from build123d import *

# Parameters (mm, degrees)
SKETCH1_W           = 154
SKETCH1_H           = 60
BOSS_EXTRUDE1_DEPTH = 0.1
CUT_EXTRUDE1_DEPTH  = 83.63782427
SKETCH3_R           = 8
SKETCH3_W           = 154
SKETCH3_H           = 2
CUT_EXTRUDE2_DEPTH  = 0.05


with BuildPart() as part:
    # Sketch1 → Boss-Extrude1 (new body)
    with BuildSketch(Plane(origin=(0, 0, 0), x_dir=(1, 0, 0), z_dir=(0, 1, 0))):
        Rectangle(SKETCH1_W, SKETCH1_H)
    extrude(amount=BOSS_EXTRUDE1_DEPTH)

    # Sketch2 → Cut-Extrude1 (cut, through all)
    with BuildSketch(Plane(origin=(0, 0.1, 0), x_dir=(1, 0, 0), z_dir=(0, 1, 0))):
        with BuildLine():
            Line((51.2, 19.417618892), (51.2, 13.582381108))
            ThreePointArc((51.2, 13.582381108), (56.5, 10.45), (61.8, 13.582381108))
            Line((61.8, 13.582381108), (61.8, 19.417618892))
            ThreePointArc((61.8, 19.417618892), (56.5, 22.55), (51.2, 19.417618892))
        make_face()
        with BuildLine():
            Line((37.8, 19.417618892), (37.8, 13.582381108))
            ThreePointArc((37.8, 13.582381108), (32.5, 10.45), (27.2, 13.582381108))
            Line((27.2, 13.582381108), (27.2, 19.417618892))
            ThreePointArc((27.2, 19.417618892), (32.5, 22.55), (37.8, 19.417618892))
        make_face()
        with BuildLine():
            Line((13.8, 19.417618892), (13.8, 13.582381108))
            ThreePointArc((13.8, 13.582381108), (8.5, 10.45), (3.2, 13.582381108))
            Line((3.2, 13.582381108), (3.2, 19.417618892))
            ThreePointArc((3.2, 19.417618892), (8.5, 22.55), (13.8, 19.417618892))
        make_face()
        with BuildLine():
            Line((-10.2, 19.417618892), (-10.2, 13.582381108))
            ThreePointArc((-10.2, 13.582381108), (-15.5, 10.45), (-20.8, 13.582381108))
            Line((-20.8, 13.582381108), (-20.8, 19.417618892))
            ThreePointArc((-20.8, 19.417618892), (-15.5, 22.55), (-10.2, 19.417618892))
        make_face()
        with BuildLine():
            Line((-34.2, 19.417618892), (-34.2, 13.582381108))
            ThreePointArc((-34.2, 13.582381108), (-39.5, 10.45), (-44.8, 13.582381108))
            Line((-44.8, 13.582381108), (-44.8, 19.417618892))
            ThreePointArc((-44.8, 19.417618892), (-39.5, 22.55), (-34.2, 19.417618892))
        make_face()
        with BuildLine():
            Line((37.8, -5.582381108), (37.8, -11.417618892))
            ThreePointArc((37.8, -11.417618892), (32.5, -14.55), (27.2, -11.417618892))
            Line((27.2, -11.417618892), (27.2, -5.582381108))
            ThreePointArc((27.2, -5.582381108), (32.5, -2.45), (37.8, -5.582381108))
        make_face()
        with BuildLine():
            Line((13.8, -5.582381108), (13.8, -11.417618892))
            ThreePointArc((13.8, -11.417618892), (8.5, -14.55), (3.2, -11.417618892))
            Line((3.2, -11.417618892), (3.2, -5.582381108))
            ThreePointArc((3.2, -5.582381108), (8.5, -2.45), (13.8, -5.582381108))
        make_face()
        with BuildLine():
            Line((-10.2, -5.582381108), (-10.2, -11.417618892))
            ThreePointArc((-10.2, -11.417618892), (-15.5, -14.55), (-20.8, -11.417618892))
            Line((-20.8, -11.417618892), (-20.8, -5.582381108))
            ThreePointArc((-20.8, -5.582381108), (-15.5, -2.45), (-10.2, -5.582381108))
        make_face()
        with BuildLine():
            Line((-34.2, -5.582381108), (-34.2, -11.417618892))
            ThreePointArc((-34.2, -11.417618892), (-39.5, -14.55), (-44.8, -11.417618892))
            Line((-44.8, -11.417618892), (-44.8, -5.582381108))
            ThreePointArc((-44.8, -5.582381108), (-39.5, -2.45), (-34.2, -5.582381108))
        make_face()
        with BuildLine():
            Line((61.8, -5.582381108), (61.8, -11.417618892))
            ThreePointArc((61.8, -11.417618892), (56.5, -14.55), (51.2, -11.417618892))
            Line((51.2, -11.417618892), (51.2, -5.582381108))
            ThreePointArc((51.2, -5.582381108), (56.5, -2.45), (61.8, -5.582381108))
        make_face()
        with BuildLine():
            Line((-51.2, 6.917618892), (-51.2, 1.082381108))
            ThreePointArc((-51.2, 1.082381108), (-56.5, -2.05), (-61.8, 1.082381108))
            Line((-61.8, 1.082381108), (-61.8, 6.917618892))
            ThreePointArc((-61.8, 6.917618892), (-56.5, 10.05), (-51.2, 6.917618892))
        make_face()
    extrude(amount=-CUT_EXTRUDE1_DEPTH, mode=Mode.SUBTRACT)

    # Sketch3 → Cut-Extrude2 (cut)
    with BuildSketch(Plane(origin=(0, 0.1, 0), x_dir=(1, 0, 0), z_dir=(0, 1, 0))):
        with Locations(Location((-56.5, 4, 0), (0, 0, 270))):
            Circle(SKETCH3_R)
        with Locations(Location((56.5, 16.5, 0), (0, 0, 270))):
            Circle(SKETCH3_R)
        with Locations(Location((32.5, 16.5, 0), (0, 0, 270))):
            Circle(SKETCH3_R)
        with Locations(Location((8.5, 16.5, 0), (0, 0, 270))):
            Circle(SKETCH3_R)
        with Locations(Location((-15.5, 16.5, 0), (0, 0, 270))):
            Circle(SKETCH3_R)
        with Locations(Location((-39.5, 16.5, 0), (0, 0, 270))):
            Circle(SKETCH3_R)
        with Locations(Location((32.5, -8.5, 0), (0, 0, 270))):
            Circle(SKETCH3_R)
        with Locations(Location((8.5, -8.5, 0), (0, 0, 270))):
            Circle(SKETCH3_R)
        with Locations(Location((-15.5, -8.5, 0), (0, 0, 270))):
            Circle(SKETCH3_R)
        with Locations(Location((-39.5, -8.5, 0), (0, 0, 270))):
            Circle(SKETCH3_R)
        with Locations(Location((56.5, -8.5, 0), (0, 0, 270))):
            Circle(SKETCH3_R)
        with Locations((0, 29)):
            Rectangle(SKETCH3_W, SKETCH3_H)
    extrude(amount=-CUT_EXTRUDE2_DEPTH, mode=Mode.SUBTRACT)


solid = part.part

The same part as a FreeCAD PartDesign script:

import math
import FreeCAD as App
import Part
import Sketcher

V = App.Vector

doc = App.newDocument("Part")
body = doc.addObject("PartDesign::Body", "Body")

# Sketch on XZ plane
sketch1 = body.newObject("Sketcher::SketchObject", "Sketch")
sketch1.AttachmentSupport = (doc.getObject("XZ_Plane"), [""])
sketch1.MapMode = "FlatFace"
sketch1.addGeometry([
    Part.LineSegment(V(-77, -30, 0), V(-77, 30, 0)),
    Part.LineSegment(V(-77, 30, 0), V(77, 30, 0)),
    Part.LineSegment(V(77, 30, 0), V(77, -30, 0)),
    Part.LineSegment(V(77, -30, 0), V(-77, -30, 0)),
], False)
sketch1.addConstraint([
    Sketcher.Constraint("Coincident", 0, 2, 1, 1),
    Sketcher.Constraint("Coincident", 1, 2, 2, 1),
    Sketcher.Constraint("Coincident", 2, 2, 3, 1),
    Sketcher.Constraint("Coincident", 3, 2, 0, 1),
    Sketcher.Constraint("Vertical", 0),
    Sketcher.Constraint("Horizontal", 1),
    Sketcher.Constraint("Vertical", 2),
    Sketcher.Constraint("Horizontal", 3),
    Sketcher.Constraint("Symmetric", 0, 2, 2, 2, -1, 1),
    Sketcher.Constraint("DistanceX", 1, 1, 1, 2, 154.0),
    Sketcher.Constraint("DistanceY", 0, 1, 0, 2, 60.0),
])
pad1 = body.newObject("PartDesign::Pad", "Pad")
pad1.Profile = sketch1
pad1.Length = 0.1
pad1.Reversed = True

# Sketch on XZ plane
sketch2 = body.newObject("Sketcher::SketchObject", "Sketch001")
sketch2.AttachmentSupport = (doc.getObject("XZ_Plane"), [""])
sketch2.MapMode = "FlatFace"
sketch2.AttachmentOffset = App.Placement(V(0, 0, -0.1), App.Rotation())
sketch2.addGeometry([
    Part.LineSegment(V(51, -19, 0), V(51, -14, 0)),  # 0
    Part.ArcOfCircle(Part.Circle(V(56, -16, 0), V(0, 0, 1), 6), math.radians(29), math.radians(151)),  # 1
    Part.LineSegment(V(62, -14, 0), V(62, -19, 0)),  # 2
    Part.ArcOfCircle(Part.Circle(V(56, -16, 0), V(0, 0, 1), 6), math.radians(-151), math.radians(-29)),  # 3
    Part.LineSegment(V(38, -14, 0), V(38, -19, 0)),  # 4
    Part.ArcOfCircle(Part.Circle(V(32, -16, 0), V(0, 0, 1), 6), math.radians(-151), math.radians(-29)),  # 5
    Part.LineSegment(V(27, -19, 0), V(27, -14, 0)),  # 6
    Part.ArcOfCircle(Part.Circle(V(32, -16, 0), V(0, 0, 1), 6), math.radians(29), math.radians(151)),  # 7
    Part.LineSegment(V(14, -14, 0), V(14, -19, 0)),  # 8
    Part.ArcOfCircle(Part.Circle(V(8, -16, 0), V(0, 0, 1), 6), math.radians(-151), math.radians(-29)),  # 9
    Part.LineSegment(V(3, -19, 0), V(3, -14, 0)),  # 10
    Part.ArcOfCircle(Part.Circle(V(8, -16, 0), V(0, 0, 1), 6), math.radians(29), math.radians(151)),  # 11
    Part.LineSegment(V(-10, -14, 0), V(-10, -19, 0)),  # 12
    Part.ArcOfCircle(Part.Circle(V(-16, -16, 0), V(0, 0, 1), 6), math.radians(-151), math.radians(-29)),  # 13
    Part.LineSegment(V(-21, -19, 0), V(-21, -14, 0)),  # 14
    Part.ArcOfCircle(Part.Circle(V(-16, -16, 0), V(0, 0, 1), 6), math.radians(29), math.radians(151)),  # 15
    Part.LineSegment(V(-34, -14, 0), V(-34, -19, 0)),  # 16
    Part.ArcOfCircle(Part.Circle(V(-40, -16, 0), V(0, 0, 1), 6), math.radians(-151), math.radians(-29)),  # 17
    Part.LineSegment(V(-45, -19, 0), V(-45, -14, 0)),  # 18
    Part.ArcOfCircle(Part.Circle(V(-40, -16, 0), V(0, 0, 1), 6), math.radians(29), math.radians(151)),  # 19
    Part.LineSegment(V(38, 11, 0), V(38, 6, 0)),  # 20
    Part.ArcOfCircle(Part.Circle(V(32, 8, 0), V(0, 0, 1), 6), math.radians(-151), math.radians(-29)),  # 21
    Part.LineSegment(V(27, 6, 0), V(27, 11, 0)),  # 22
    Part.ArcOfCircle(Part.Circle(V(32, 8, 0), V(0, 0, 1), 6), math.radians(29), math.radians(151)),  # 23
    Part.LineSegment(V(14, 11, 0), V(14, 6, 0)),  # 24
    Part.ArcOfCircle(Part.Circle(V(8, 8, 0), V(0, 0, 1), 6), math.radians(-151), math.radians(-29)),  # 25
    Part.LineSegment(V(3, 6, 0), V(3, 11, 0)),  # 26
    Part.ArcOfCircle(Part.Circle(V(8, 8, 0), V(0, 0, 1), 6), math.radians(29), math.radians(151)),  # 27
    Part.LineSegment(V(-10, 11, 0), V(-10, 6, 0)),  # 28
    Part.ArcOfCircle(Part.Circle(V(-16, 8, 0), V(0, 0, 1), 6), math.radians(-151), math.radians(-29)),  # 29
    Part.LineSegment(V(-21, 6, 0), V(-21, 11, 0)),  # 30
    Part.ArcOfCircle(Part.Circle(V(-16, 8, 0), V(0, 0, 1), 6), math.radians(29), math.radians(151)),  # 31
    Part.LineSegment(V(-34, 11, 0), V(-34, 6, 0)),  # 32
    Part.ArcOfCircle(Part.Circle(V(-40, 8, 0), V(0, 0, 1), 6), math.radians(-151), math.radians(-29)),  # 33
    Part.LineSegment(V(-45, 6, 0), V(-45, 11, 0)),  # 34
    Part.ArcOfCircle(Part.Circle(V(-40, 8, 0), V(0, 0, 1), 6), math.radians(29), math.radians(151)),  # 35
    Part.LineSegment(V(62, 11, 0), V(62, 6, 0)),  # 36
    Part.ArcOfCircle(Part.Circle(V(56, 8, 0), V(0, 0, 1), 6), math.radians(-151), math.radians(-29)),  # 37
    Part.LineSegment(V(51, 6, 0), V(51, 11, 0)),  # 38
    Part.ArcOfCircle(Part.Circle(V(56, 8, 0), V(0, 0, 1), 6), math.radians(29), math.radians(151)),  # 39
    Part.LineSegment(V(-51, -1, 0), V(-51, -7, 0)),  # 40
    Part.ArcOfCircle(Part.Circle(V(-56, -4, 0), V(0, 0, 1), 6), math.radians(-151), math.radians(-29)),  # 41
    Part.LineSegment(V(-62, -7, 0), V(-62, -1, 0)),  # 42
    Part.ArcOfCircle(Part.Circle(V(-56, -4, 0), V(0, 0, 1), 6), math.radians(29), math.radians(151)),  # 43
], False)
sketch2.addConstraint([
    Sketcher.Constraint("Coincident", 0, 2, 1, 2),
    Sketcher.Constraint("Coincident", 1, 1, 2, 1),
    Sketcher.Constraint("Coincident", 2, 2, 3, 2),
    Sketcher.Constraint("Coincident", 3, 1, 0, 1),
    Sketcher.Constraint("Coincident", 4, 2, 5, 2),
    Sketcher.Constraint("Coincident", 5, 1, 6, 1),
    Sketcher.Constraint("Coincident", 6, 2, 7, 2),
    Sketcher.Constraint("Coincident", 7, 1, 4, 1),
    Sketcher.Constraint("Coincident", 8, 2, 9, 2),
    Sketcher.Constraint("Coincident", 9, 1, 10, 1),
    Sketcher.Constraint("Coincident", 10, 2, 11, 2),
    Sketcher.Constraint("Coincident", 11, 1, 8, 1),
    Sketcher.Constraint("Coincident", 12, 2, 13, 2),
    Sketcher.Constraint("Coincident", 13, 1, 14, 1),
    Sketcher.Constraint("Coincident", 14, 2, 15, 2),
    Sketcher.Constraint("Coincident", 15, 1, 12, 1),
    Sketcher.Constraint("Coincident", 16, 2, 17, 2),
    Sketcher.Constraint("Coincident", 17, 1, 18, 1),
    Sketcher.Constraint("Coincident", 18, 2, 19, 2),
    Sketcher.Constraint("Coincident", 19, 1, 16, 1),
    Sketcher.Constraint("Coincident", 20, 2, 21, 2),
    Sketcher.Constraint("Coincident", 21, 1, 22, 1),
    Sketcher.Constraint("Coincident", 22, 2, 23, 2),
    Sketcher.Constraint("Coincident", 23, 1, 20, 1),
    Sketcher.Constraint("Coincident", 24, 2, 25, 2),
    Sketcher.Constraint("Coincident", 25, 1, 26, 1),
    Sketcher.Constraint("Coincident", 26, 2, 27, 2),
    Sketcher.Constraint("Coincident", 27, 1, 24, 1),
    Sketcher.Constraint("Coincident", 28, 2, 29, 2),
    Sketcher.Constraint("Coincident", 29, 1, 30, 1),
    Sketcher.Constraint("Coincident", 30, 2, 31, 2),
    Sketcher.Constraint("Coincident", 31, 1, 28, 1),
    Sketcher.Constraint("Coincident", 32, 2, 33, 2),
    Sketcher.Constraint("Coincident", 33, 1, 34, 1),
    Sketcher.Constraint("Coincident", 34, 2, 35, 2),
    Sketcher.Constraint("Coincident", 35, 1, 32, 1),
    Sketcher.Constraint("Coincident", 36, 2, 37, 2),
    Sketcher.Constraint("Coincident", 37, 1, 38, 1),
    Sketcher.Constraint("Coincident", 38, 2, 39, 2),
    Sketcher.Constraint("Coincident", 39, 1, 36, 1),
    Sketcher.Constraint("Coincident", 40, 2, 41, 2),
    Sketcher.Constraint("Coincident", 41, 1, 42, 1),
    Sketcher.Constraint("Coincident", 42, 2, 43, 2),
    Sketcher.Constraint("Coincident", 43, 1, 40, 1),
    Sketcher.Constraint("Vertical", 0),
    Sketcher.Constraint("Vertical", 2),
    Sketcher.Constraint("Vertical", 4),
    Sketcher.Constraint("Vertical", 6),
    Sketcher.Constraint("Vertical", 8),
    Sketcher.Constraint("Vertical", 10),
    Sketcher.Constraint("Vertical", 12),
    Sketcher.Constraint("Vertical", 14),
    Sketcher.Constraint("Vertical", 16),
    Sketcher.Constraint("Vertical", 18),
    Sketcher.Constraint("Vertical", 20),
    Sketcher.Constraint("Vertical", 22),
    Sketcher.Constraint("Vertical", 24),
    Sketcher.Constraint("Vertical", 26),
    Sketcher.Constraint("Vertical", 28),
    Sketcher.Constraint("Vertical", 30),
    Sketcher.Constraint("Vertical", 32),
    Sketcher.Constraint("Vertical", 34),
    Sketcher.Constraint("Vertical", 36),
    Sketcher.Constraint("Vertical", 38),
    Sketcher.Constraint("Vertical", 40),
    Sketcher.Constraint("Vertical", 42),
    Sketcher.Constraint("Coincident", 3, 3, 1, 3),
    Sketcher.Constraint("Coincident", 7, 3, 5, 3),
    Sketcher.Constraint("Coincident", 11, 3, 9, 3),
    Sketcher.Constraint("Coincident", 15, 3, 13, 3),
    Sketcher.Constraint("Coincident", 19, 3, 17, 3),
    Sketcher.Constraint("Coincident", 23, 3, 21, 3),
    Sketcher.Constraint("Coincident", 27, 3, 25, 3),
    Sketcher.Constraint("Coincident", 31, 3, 29, 3),
    Sketcher.Constraint("Coincident", 35, 3, 33, 3),
    Sketcher.Constraint("Coincident", 39, 3, 37, 3),
    Sketcher.Constraint("Coincident", 43, 3, 41, 3),
    Sketcher.Constraint("Equal", 1, 3),
    Sketcher.Constraint("Equal", 3, 5),
    Sketcher.Constraint("Equal", 5, 7),
    Sketcher.Constraint("Equal", 7, 9),
    Sketcher.Constraint("Equal", 9, 11),
    Sketcher.Constraint("Equal", 11, 13),
    Sketcher.Constraint("Equal", 13, 15),
    Sketcher.Constraint("Equal", 15, 17),
    Sketcher.Constraint("Equal", 17, 19),
    Sketcher.Constraint("Equal", 19, 21),
    Sketcher.Constraint("Equal", 21, 23),
    Sketcher.Constraint("Equal", 23, 25),
    Sketcher.Constraint("Equal", 25, 27),
    Sketcher.Constraint("Equal", 27, 29),
    Sketcher.Constraint("Equal", 29, 31),
    Sketcher.Constraint("Equal", 31, 33),
    Sketcher.Constraint("Equal", 33, 35),
    Sketcher.Constraint("Equal", 35, 37),
    Sketcher.Constraint("Equal", 37, 39),
    Sketcher.Constraint("Equal", 39, 41),
    Sketcher.Constraint("Equal", 41, 43),
    Sketcher.Constraint("Horizontal", 3, 3, 5, 3),
    Sketcher.Constraint("Horizontal", 7, 3, 9, 3),
    Sketcher.Constraint("Horizontal", 11, 3, 13, 3),
    Sketcher.Constraint("Horizontal", 15, 3, 17, 3),
    Sketcher.Constraint("Horizontal", 23, 3, 25, 3),
    Sketcher.Constraint("Horizontal", 27, 3, 29, 3),
    Sketcher.Constraint("Horizontal", 31, 3, 33, 3),
    Sketcher.Constraint("Horizontal", 35, 3, 37, 3),
    Sketcher.Constraint("Horizontal", 0, 2, 1, 1),
    Sketcher.Constraint("Horizontal", 3, 1, 4, 2),
    Sketcher.Constraint("Horizontal", 4, 2, 5, 1),
    Sketcher.Constraint("Horizontal", 5, 1, 8, 2),
    Sketcher.Constraint("Horizontal", 8, 2, 9, 1),
    Sketcher.Constraint("Horizontal", 9, 1, 12, 2),
    Sketcher.Constraint("Horizontal", 12, 2, 13, 1),
    Sketcher.Constraint("Horizontal", 13, 1, 16, 2),
    Sketcher.Constraint("Horizontal", 16, 2, 17, 1),
    Sketcher.Constraint("Horizontal", 20, 2, 21, 1),
    Sketcher.Constraint("Horizontal", 21, 1, 24, 2),
    Sketcher.Constraint("Horizontal", 24, 2, 25, 1),
    Sketcher.Constraint("Horizontal", 25, 1, 28, 2),
    Sketcher.Constraint("Horizontal", 28, 2, 29, 1),
    Sketcher.Constraint("Horizontal", 29, 1, 32, 2),
    Sketcher.Constraint("Horizontal", 32, 2, 33, 1),
    Sketcher.Constraint("Horizontal", 33, 1, 36, 2),
    Sketcher.Constraint("Horizontal", 36, 2, 37, 1),
    Sketcher.Constraint("Horizontal", 40, 2, 41, 1),
    Sketcher.Constraint("Vertical", 7, 3, 21, 3),
    Sketcher.Constraint("Vertical", 11, 3, 25, 3),
    Sketcher.Constraint("Vertical", 15, 3, 29, 3),
    Sketcher.Constraint("Vertical", 19, 3, 33, 3),
    Sketcher.Constraint("Vertical", 3, 3, 37, 3),
    Sketcher.Constraint("Vertical", 7, 1, 20, 2),
    Sketcher.Constraint("Equal", 38, 40),
    Sketcher.Constraint("Radius", 1, 6.05),
    Sketcher.Constraint("DistanceY", 41, 3, -1, 1, 4.0),
    Sketcher.Constraint("DistanceX", -1, 1, 1, 3, 56.5),
    Sketcher.Constraint("DistanceY", 1, 3, -1, 1, 16.5),
    Sketcher.Constraint("DistanceX", -1, 1, 5, 3, 32.5),
    Sketcher.Constraint("DistanceX", -1, 1, 9, 3, 8.5),
    Sketcher.Constraint("DistanceX", 13, 3, -1, 1, 15.5),
    Sketcher.Constraint("DistanceX", 17, 3, -1, 1, 39.5),
    Sketcher.Constraint("DistanceY", -1, 1, 21, 3, 8.5),
    Sketcher.Constraint("DistanceX", 41, 3, -1, 1, 56.5),
    Sketcher.Constraint("DistanceX", -1, 1, 0, 2, 51.2),
])
pocket1 = body.newObject("PartDesign::Pocket", "Pocket")
pocket1.Profile = sketch2
pocket1.Type = "ThroughAll"
pocket1.Reversed = True

# Sketch on XZ plane
sketch3 = body.newObject("Sketcher::SketchObject", "Sketch002")
sketch3.AttachmentSupport = (doc.getObject("XZ_Plane"), [""])
sketch3.MapMode = "FlatFace"
sketch3.AttachmentOffset = App.Placement(V(0, 0, -0.1), App.Rotation())
sketch3.addGeometry([
    Part.Circle(V(-56.5, -4, 0), V(0, 0, 1), 8),  # 0
    Part.Circle(V(56.5, -16.5, 0), V(0, 0, 1), 8),  # 1
    Part.Circle(V(32.5, -16.5, 0), V(0, 0, 1), 8),  # 2
    Part.Circle(V(8.5, -16.5, 0), V(0, 0, 1), 8),  # 3
    Part.Circle(V(-15.5, -16.5, 0), V(0, 0, 1), 8),  # 4
    Part.Circle(V(-39.5, -16.5, 0), V(0, 0, 1), 8),  # 5
    Part.Circle(V(32.5, 8.5, 0), V(0, 0, 1), 8),  # 6
    Part.Circle(V(8.5, 8.5, 0), V(0, 0, 1), 8),  # 7
    Part.Circle(V(-15.5, 8.5, 0), V(0, 0, 1), 8),  # 8
    Part.Circle(V(-39.5, 8.5, 0), V(0, 0, 1), 8),  # 9
    Part.Circle(V(56.5, 8.5, 0), V(0, 0, 1), 8),  # 10
    Part.LineSegment(V(-77, -30, 0), V(-77, -28, 0)),  # 11
    Part.LineSegment(V(-77, -28, 0), V(77, -28, 0)),  # 12
    Part.LineSegment(V(77, -28, 0), V(77, -30, 0)),  # 13
    Part.LineSegment(V(77, -30, 0), V(-77, -30, 0)),  # 14
], False)
sketch3.addConstraint([
    Sketcher.Constraint("Coincident", 11, 2, 12, 1),
    Sketcher.Constraint("Coincident", 12, 2, 13, 1),
    Sketcher.Constraint("Coincident", 13, 2, 14, 1),
    Sketcher.Constraint("Coincident", 14, 2, 11, 1),
    Sketcher.Constraint("Vertical", 11),
    Sketcher.Constraint("Horizontal", 12),
    Sketcher.Constraint("Vertical", 13),
    Sketcher.Constraint("Horizontal", 14),
    Sketcher.Constraint("Equal", 0, 1),
    Sketcher.Constraint("Equal", 1, 2),
    Sketcher.Constraint("Equal", 2, 3),
    Sketcher.Constraint("Equal", 3, 4),
    Sketcher.Constraint("Equal", 4, 5),
    Sketcher.Constraint("Equal", 5, 6),
    Sketcher.Constraint("Equal", 6, 7),
    Sketcher.Constraint("Equal", 7, 8),
    Sketcher.Constraint("Equal", 8, 9),
    Sketcher.Constraint("Equal", 9, 10),
    Sketcher.Constraint("Horizontal", 1, 3, 2, 3),
    Sketcher.Constraint("Horizontal", 2, 3, 3, 3),
    Sketcher.Constraint("Horizontal", 3, 3, 4, 3),
    Sketcher.Constraint("Horizontal", 4, 3, 5, 3),
    Sketcher.Constraint("Horizontal", 6, 3, 7, 3),
    Sketcher.Constraint("Horizontal", 7, 3, 8, 3),
    Sketcher.Constraint("Horizontal", 8, 3, 9, 3),
    Sketcher.Constraint("Horizontal", 9, 3, 10, 3),
    Sketcher.Constraint("Vertical", 2, 3, 6, 3),
    Sketcher.Constraint("Vertical", 3, 3, 7, 3),
    Sketcher.Constraint("Vertical", 4, 3, 8, 3),
    Sketcher.Constraint("Vertical", 5, 3, 9, 3),
    Sketcher.Constraint("Vertical", 1, 3, 10, 3),
    Sketcher.Constraint("Diameter", 0, 16.0),
    Sketcher.Constraint("DistanceX", 12, 1, 12, 2, 154.0),
    Sketcher.Constraint("DistanceY", 11, 1, 11, 2, 2.0),
    Sketcher.Constraint("DistanceY", 0, 3, -1, 1, 4.0),
    Sketcher.Constraint("DistanceX", 11, 2, -1, 1, 77.0),
    Sketcher.Constraint("DistanceY", 11, 2, -1, 1, 28.0),
    Sketcher.Constraint("DistanceX", 0, 3, 1, 3, 113.0),
    Sketcher.Constraint("DistanceX", 2, 3, 1, 3, 24.0),
    Sketcher.Constraint("DistanceX", 3, 3, 2, 3, 24.0),
    Sketcher.Constraint("DistanceX", 4, 3, 3, 3, 24.0),
    Sketcher.Constraint("DistanceX", 0, 3, 5, 3, 17.0),
    Sketcher.Constraint("DistanceY", 2, 3, 6, 3, 25.0),
    Sketcher.Constraint("DistanceX", 0, 3, -1, 1, 56.5),
    Sketcher.Constraint("DistanceY", 1, 3, -1, 1, 16.5),
])
pocket2 = body.newObject("PartDesign::Pocket", "Pocket001")
pocket2.Profile = sketch3
pocket2.Length = 0.05
pocket2.Reversed = True

doc.recompute()
